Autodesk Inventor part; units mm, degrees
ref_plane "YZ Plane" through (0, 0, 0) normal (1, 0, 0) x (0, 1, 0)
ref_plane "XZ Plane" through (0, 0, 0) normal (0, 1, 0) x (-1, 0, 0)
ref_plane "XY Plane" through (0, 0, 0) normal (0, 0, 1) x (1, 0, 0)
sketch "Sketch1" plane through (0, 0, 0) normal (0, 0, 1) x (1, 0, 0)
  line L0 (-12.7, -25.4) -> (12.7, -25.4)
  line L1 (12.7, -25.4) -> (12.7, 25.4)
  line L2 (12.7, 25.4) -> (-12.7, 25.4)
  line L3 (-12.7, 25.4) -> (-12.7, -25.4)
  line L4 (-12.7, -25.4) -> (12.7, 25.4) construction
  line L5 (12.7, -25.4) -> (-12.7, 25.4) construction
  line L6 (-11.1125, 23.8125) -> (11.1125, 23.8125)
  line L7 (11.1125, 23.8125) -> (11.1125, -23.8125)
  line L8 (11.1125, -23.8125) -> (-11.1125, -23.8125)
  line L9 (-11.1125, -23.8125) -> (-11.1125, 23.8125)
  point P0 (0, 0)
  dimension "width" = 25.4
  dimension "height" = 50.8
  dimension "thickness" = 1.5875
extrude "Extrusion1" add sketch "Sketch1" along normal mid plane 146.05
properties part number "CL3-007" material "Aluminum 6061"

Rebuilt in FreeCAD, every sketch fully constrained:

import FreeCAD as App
import Part
import Sketcher

V = App.Vector
Q = App.Units.Quantity


def add_polygon(sketch, points):
    """Adds a closed chain of lines whose ends are joined by coincident constraints."""
    first, n = sketch.GeometryCount, len(points)
    for a, b in zip(points, points[1:] + points[:1]):
        sketch.addGeometry(Part.LineSegment(App.Vector(*a, 0), App.Vector(*b, 0)), False)
    for i in range(n):
        sketch.addConstraint(Sketcher.Constraint("Coincident", first + i, 2, first + (i + 1) % n, 1))

doc = App.newDocument("Part")
body = doc.addObject("PartDesign::Body", "Body")

# Sketch on XY plane
sketch1 = body.newObject("Sketcher::SketchObject", "Sketch")
sketch1.AttachmentSupport = (doc.getObject("XY_Plane"), [""])
sketch1.MapMode = "FlatFace"
add_polygon(sketch1, [(-13, 25), (-13, -25), (13, -25), (13, 25)])  # lines 0-3
add_polygon(sketch1, [(-11, -24), (-11, 24), (11, 24), (11, -24)])  # lines 4-7
sketch1.addConstraint(Sketcher.Constraint("Vertical", 0))
sketch1.addConstraint(Sketcher.Constraint("Horizontal", 1))
sketch1.addConstraint(Sketcher.Constraint("Vertical", 2))
sketch1.addConstraint(Sketcher.Constraint("Horizontal", 3))
sketch1.addConstraint(Sketcher.Constraint("Vertical", 4))
sketch1.addConstraint(Sketcher.Constraint("Horizontal", 5))
sketch1.addConstraint(Sketcher.Constraint("Vertical", 6))
sketch1.addConstraint(Sketcher.Constraint("Horizontal", 7))
sketch1.addConstraint(Sketcher.Constraint("Symmetric", 0, 2, 2, 2, -1, 1))
sketch1.addConstraint(Sketcher.Constraint("Symmetric", 4, 2, 6, 2, -1, 1))
sketch1.addConstraint(Sketcher.Constraint("DistanceX", 1, 1, 1, 2, Q("1 in")))
sketch1.addConstraint(Sketcher.Constraint("DistanceY", 0, 2, 0, 1, Q("2 in")))
sketch1.addConstraint(Sketcher.Constraint("DistanceX", 3, 2, 4, 2, Q("0.0625 in")))
sketch1.addConstraint(Sketcher.Constraint("DistanceY", 4, 2, 3, 2, Q("0.0625 in")))
pad1 = body.newObject("PartDesign::Pad", "Pad")
pad1.Profile = sketch1
pad1.Length = Q("5.75 in")
pad1.Midplane = True

doc.recompute()
